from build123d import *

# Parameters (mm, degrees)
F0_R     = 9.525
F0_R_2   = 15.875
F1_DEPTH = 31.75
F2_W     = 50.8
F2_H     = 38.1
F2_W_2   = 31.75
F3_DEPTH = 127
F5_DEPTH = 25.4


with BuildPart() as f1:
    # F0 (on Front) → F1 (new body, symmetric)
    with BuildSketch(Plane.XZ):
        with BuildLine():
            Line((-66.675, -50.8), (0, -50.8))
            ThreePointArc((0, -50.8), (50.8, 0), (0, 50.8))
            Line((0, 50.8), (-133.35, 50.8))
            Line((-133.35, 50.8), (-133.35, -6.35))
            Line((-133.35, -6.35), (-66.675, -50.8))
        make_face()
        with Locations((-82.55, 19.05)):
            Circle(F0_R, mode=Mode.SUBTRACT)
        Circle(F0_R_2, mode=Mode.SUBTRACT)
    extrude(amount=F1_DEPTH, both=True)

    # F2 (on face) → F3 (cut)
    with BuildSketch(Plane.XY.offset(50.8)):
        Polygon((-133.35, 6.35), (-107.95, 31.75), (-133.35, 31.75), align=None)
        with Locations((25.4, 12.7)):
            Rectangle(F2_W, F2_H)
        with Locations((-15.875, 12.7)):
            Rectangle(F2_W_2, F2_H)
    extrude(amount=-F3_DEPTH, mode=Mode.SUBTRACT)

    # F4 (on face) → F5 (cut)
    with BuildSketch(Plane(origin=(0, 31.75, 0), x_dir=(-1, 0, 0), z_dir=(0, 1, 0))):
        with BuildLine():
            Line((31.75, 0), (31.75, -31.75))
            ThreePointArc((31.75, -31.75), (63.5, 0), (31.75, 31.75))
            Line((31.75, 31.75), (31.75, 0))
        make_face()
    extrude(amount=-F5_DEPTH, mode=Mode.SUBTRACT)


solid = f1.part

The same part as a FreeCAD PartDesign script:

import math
import FreeCAD as App
import Part
import Sketcher
from FreeCAD import Vector
Q = App.Units.Quantity


def add_polygon(sketch, points):
    """Adds a closed chain of lines whose ends are joined by coincident constraints."""
    first, n = sketch.GeometryCount, len(points)
    for a, b in zip(points, points[1:] + points[:1]):
        sketch.addGeometry(Part.LineSegment(App.Vector(*a, 0), App.Vector(*b, 0)), False)
    for i in range(n):
        sketch.addConstraint(Sketcher.Constraint("Coincident", first + i, 2, first + (i + 1) % n, 1))

doc = App.newDocument("Part")
body = doc.addObject("PartDesign::Body", "Body")

sketch1 = doc.addObject("Sketcher::SketchObject", "Sketch")
body.addObject(sketch1)
sketch1.AttachmentSupport = (doc.XZ_Plane, [""])
sketch1.MapMode = "FlatFace"
sketch1.addGeometry(Part.LineSegment(Vector(-66.675, -50.8, 0), Vector(0, -50.8, 0)), False)
sketch1.addGeometry(Part.ArcOfCircle(Part.Circle(Vector(0, 0, 0), Vector(0, 0, 1), 50.8), math.radians(-90), math.radians(90)), False)
sketch1.addGeometry(Part.LineSegment(Vector(0, 50.8, 0), Vector(-133.35, 50.8, 0)), False)
sketch1.addGeometry(Part.LineSegment(Vector(-133.35, 50.8, 0), Vector(-133.35, -6.35, 0)), False)
sketch1.addGeometry(Part.LineSegment(Vector(-133.35, -6.35, 0), Vector(-66.675, -50.8, 0)), False)
sketch1.addGeometry(Part.Circle(Vector(0, 0, 0), Vector(0, 0, 1), 15.875), False)
sketch1.addGeometry(Part.Circle(Vector(-82.55, 19.05, 0), Vector(0, 0, 1), 9.525), False)
sketch1.addConstraint(Sketcher.Constraint("Tangent", 0, 2, 1, 1))
sketch1.addConstraint(Sketcher.Constraint("Tangent", 1, 2, 2, 1))
sketch1.addConstraint(Sketcher.Constraint("Coincident", 2, 2, 3, 1))
sketch1.addConstraint(Sketcher.Constraint("Coincident", 3, 2, 4, 1))
sketch1.addConstraint(Sketcher.Constraint("Coincident", 4, 2, 0, 1))
sketch1.addConstraint(Sketcher.Constraint("Horizontal", 0))
sketch1.addConstraint(Sketcher.Constraint("Horizontal", 2))
sketch1.addConstraint(Sketcher.Constraint("Vertical", 3))
sketch1.addConstraint(Sketcher.Constraint("Coincident", 1, 3, -1, 1))
sketch1.addConstraint(Sketcher.Constraint("Coincident", 5, 3, -1, 1))
sketch1.addConstraint(Sketcher.Constraint("Radius", 1, Q("2 in")))
sketch1.addConstraint(Sketcher.Constraint("Diameter", 5, Q("1.25 in")))
sketch1.addConstraint(Sketcher.Constraint("Diameter", 6, Q("0.75 in")))
sketch1.addConstraint(Sketcher.Constraint("DistanceX", 2, 2, 6, 3, Q("2 in")))
sketch1.addConstraint(Sketcher.Constraint("DistanceY", 3, 2, 6, 3, Q("1 in")))
sketch1.addConstraint(Sketcher.Constraint("DistanceX", 2, 2, 2, 1, Q("5.25 in")))
sketch1.addConstraint(Sketcher.Constraint("DistanceY", 3, 2, 3, 1, Q("2.25 in")))
sketch1.addConstraint(Sketcher.Constraint("DistanceX", 0, 1, 0, 2, Q("2.625 in")))
pad1 = doc.addObject("PartDesign::Pad", "Pad")
body.addObject(pad1)
pad1.Profile = sketch1
pad1.Length = Q("2.5 in")
pad1.Midplane = True

sketch2 = doc.addObject("Sketcher::SketchObject", "Sketch001")
body.addObject(sketch2)
sketch2.AttachmentSupport = (doc.XY_Plane, [""])
sketch2.MapMode = "FlatFace"
sketch2.AttachmentOffset = App.Placement(Vector(0, 0, 2 * 25.4), App.Rotation())
add_polygon(sketch2, [(-133.35, 6.35), (-107.95, 31.75), (-133.35, 31.75)])
add_polygon(sketch2, [(50.8, -6.35), (50.8, 31.75), (-31.75, 31.75), (-31.75, -6.35)])
sketch2.addConstraint(Sketcher.Constraint("Horizontal", 1))
sketch2.addConstraint(Sketcher.Constraint("Vertical", 2))
sketch2.addConstraint(Sketcher.Constraint("Vertical", 3))
sketch2.addConstraint(Sketcher.Constraint("Horizontal", 4))
sketch2.addConstraint(Sketcher.Constraint("Vertical", 5))
sketch2.addConstraint(Sketcher.Constraint("Horizontal", 6))
sketch2.addConstraint(Sketcher.Constraint("Horizontal", 1, 2, 3, 2))
sketch2.addConstraint(Sketcher.Constraint("Equal", 1, 2))
sketch2.addConstraint(Sketcher.Constraint("DistanceX", 1, 2, 1, 1, Q("1 in")))
sketch2.addConstraint(Sketcher.Constraint("DistanceY", 3, 1, 3, 2, Q("1.5 in")))
sketch2.addConstraint(Sketcher.Constraint("DistanceX", -1, 1, 3, 2, Q("2 in")))
sketch2.addConstraint(Sketcher.Constraint("DistanceX", 0, 2, 4, 2, Q("3 in")))
sketch2.addConstraint(Sketcher.Constraint("DistanceX", 4, 2, 4, 1, Q("3.25 in")))
sketch2.addConstraint(Sketcher.Constraint("DistanceY", -1, 1, 0, 2, Q("1.25 in")))
pocket1 = doc.addObject("PartDesign::Pocket", "Pocket")
body.addObject(pocket1)
pocket1.Profile = sketch2
pocket1.Length = Q("5 in")

sketch3 = doc.addObject("Sketcher::SketchObject", "Sketch002")
body.addObject(sketch3)
sketch3.AttachmentSupport = (doc.XZ_Plane, [""])
sketch3.MapMode = "FlatFace"
sketch3.AttachmentOffset = App.Placement(Vector(0, 0, -1.25 * 25.4), App.Rotation())
sketch3.addGeometry(Part.ArcOfCircle(Part.Circle(Vector(-31.75, 0, 0), Vector(0, 0, 1), 31.75), math.radians(90), math.radians(270)), False)
sketch3.addGeometry(Part.LineSegment(Vector(-31.75, 31.75, 0), Vector(-31.75, -31.75, 0)), False)
sketch3.addConstraint(Sketcher.Constraint("Coincident", 0, 1, 1, 1))
sketch3.addConstraint(Sketcher.Constraint("Coincident", 1, 2, 0, 2))
sketch3.addConstraint(Sketcher.Constraint("Vertical", 1))
sketch3.addConstraint(Sketcher.Constraint("PointOnObject", 0, 3, -1))
sketch3.addConstraint(Sketcher.Constraint("Radius", 0, Q("1.25 in")))
sketch3.addConstraint(Sketcher.Constraint("DistanceX", 0, 3, -1, 1, Q("1.25 in")))
sketch3.addConstraint(Sketcher.Constraint("DistanceX", 0, 1, -1, 1, Q("1.25 in")))
pocket2 = doc.addObject("PartDesign::Pocket", "Pocket001")
body.addObject(pocket2)
pocket2.Profile = sketch3
pocket2.Length = Q("1 in")
pocket2.Reversed = True

doc.recompute()
